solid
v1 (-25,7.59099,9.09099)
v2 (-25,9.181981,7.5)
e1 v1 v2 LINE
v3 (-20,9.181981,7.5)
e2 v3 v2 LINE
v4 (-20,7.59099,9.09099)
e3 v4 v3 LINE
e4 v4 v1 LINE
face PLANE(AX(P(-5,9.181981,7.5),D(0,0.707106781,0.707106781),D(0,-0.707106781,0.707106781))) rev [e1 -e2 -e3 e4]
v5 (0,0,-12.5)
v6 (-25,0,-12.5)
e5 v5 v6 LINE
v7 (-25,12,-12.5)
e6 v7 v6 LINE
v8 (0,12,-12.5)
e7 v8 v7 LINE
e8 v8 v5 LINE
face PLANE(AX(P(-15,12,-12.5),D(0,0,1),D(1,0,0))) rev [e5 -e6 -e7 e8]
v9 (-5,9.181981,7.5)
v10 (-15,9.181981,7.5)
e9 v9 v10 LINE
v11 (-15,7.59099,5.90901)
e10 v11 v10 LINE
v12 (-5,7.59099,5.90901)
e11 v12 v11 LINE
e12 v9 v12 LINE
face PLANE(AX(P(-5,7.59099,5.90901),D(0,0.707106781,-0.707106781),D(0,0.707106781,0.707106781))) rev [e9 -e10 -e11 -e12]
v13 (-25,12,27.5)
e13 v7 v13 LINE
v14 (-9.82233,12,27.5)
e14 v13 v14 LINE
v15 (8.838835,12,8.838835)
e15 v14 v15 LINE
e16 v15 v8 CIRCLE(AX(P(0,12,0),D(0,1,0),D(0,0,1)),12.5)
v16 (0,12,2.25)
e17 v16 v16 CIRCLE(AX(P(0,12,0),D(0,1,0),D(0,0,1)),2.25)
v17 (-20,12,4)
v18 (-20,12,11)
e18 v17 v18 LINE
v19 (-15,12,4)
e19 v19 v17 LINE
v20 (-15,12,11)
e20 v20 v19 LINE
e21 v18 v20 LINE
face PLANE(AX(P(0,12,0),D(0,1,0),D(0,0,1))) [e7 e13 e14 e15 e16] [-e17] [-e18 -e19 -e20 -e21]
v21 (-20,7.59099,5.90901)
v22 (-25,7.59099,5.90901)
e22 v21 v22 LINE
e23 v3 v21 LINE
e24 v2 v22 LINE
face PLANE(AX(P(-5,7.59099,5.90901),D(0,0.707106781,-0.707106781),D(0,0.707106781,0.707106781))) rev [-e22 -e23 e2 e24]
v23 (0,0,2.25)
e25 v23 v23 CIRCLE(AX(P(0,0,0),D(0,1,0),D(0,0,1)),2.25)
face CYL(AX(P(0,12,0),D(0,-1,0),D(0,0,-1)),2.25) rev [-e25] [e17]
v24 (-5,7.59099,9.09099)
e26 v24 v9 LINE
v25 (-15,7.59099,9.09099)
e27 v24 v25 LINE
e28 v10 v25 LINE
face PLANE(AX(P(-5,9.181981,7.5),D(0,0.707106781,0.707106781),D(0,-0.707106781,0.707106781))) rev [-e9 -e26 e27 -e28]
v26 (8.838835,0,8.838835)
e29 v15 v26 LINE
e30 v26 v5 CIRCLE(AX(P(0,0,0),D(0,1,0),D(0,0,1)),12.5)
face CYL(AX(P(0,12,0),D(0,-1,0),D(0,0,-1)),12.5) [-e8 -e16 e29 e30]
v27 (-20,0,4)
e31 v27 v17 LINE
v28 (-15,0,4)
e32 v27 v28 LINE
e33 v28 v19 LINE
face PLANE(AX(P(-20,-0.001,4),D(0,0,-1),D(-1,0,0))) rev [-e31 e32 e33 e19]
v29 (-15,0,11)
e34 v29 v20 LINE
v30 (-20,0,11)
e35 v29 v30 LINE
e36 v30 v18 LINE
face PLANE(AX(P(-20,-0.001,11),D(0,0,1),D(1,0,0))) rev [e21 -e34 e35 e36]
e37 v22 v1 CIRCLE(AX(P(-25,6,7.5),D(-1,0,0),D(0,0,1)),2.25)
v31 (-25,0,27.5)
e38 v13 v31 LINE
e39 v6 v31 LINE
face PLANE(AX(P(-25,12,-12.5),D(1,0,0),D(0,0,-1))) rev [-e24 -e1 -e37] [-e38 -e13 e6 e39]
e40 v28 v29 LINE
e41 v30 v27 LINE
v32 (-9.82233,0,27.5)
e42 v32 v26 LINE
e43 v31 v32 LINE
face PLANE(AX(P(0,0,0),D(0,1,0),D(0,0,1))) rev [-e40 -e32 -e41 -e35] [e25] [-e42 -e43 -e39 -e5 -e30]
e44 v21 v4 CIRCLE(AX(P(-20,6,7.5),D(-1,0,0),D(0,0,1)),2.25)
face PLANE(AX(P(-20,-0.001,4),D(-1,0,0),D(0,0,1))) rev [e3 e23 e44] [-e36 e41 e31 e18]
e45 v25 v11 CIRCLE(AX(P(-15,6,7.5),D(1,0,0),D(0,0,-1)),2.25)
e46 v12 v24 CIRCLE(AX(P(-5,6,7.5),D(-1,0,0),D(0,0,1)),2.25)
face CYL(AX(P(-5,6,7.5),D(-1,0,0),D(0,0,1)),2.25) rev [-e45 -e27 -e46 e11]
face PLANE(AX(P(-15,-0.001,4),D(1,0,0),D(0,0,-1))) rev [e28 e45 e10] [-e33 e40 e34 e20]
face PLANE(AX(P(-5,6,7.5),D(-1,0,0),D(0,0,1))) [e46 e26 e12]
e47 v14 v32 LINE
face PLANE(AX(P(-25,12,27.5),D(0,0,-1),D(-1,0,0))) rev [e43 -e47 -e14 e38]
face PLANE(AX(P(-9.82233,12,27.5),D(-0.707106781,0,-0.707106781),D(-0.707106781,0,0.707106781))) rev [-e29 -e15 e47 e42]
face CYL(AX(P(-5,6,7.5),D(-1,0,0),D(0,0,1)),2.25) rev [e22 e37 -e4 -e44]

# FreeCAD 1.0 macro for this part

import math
import FreeCAD as App
import Part
import Sketcher

V = App.Vector
Q = App.Units.Quantity


def add_polygon(sketch, points):
    """Adds a closed chain of lines whose ends are joined by coincident constraints."""
    first, n = sketch.GeometryCount, len(points)
    for a, b in zip(points, points[1:] + points[:1]):
        sketch.addGeometry(Part.LineSegment(App.Vector(*a, 0), App.Vector(*b, 0)), False)
    for i in range(n):
        sketch.addConstraint(Sketcher.Constraint("Coincident", first + i, 2, first + (i + 1) % n, 1))

doc = App.newDocument("Part")
params = doc.addObject("Spreadsheet::Sheet", "Params")
for row, (alias, value) in enumerate([
    ("sketch1_diameter", "4.5 mm"),
    ("sketch1_radius", "12.5 mm"),
    ("sketch1_width", "25 mm"),
    ("sketch1_height", "40 mm"),
    ("pad1_length", "12 mm"),
    ("sketch2_radius", "2.25 mm"),
    ("pocket1_length", "20 mm"),
    ("sketch3_width", "5 mm"),
    ("sketch3_height", "7 mm"),
    ("pocket2_length", "12 mm"),
], start=1):
    params.set(f"A{row}", alias)
    params.set(f"B{row}", "=" + value)
    params.setAlias(f"B{row}", alias)

body = doc.addObject("PartDesign::Body", "Body")

sketch1 = doc.addObject("Sketcher::SketchObject", "Sketch")
body.addObject(sketch1)
sketch1.AttachmentSupport = (doc.XZ_Plane, [""])
sketch1.MapMode = "FlatFace"
sketch1.addGeometry(Part.LineSegment(V(0, -12.5, 0), V(-25, -12.5, 0)), False)
sketch1.addGeometry(Part.LineSegment(V(-25, -12.5, 0), V(-25, 27.5, 0)), False)
sketch1.addGeometry(Part.LineSegment(V(-25, 27.5, 0), V(-9.8, 27.5, 0)), False)
sketch1.addGeometry(Part.LineSegment(V(-9.8, 27.5, 0), V(8.8, 8.8, 0)), False)
sketch1.addGeometry(Part.ArcOfCircle(Part.Circle(V(0, 0, 0), V(0, 0, 1), 12.5), math.radians(-90), math.radians(45)), False)
sketch1.addGeometry(Part.Circle(V(0, 0, 0), V(0, 0, 1), 2.2), False)
sketch1.addConstraint(Sketcher.Constraint("Coincident", 0, 2, 1, 1))
sketch1.addConstraint(Sketcher.Constraint("Coincident", 1, 2, 2, 1))
sketch1.addConstraint(Sketcher.Constraint("Coincident", 2, 2, 3, 1))
sketch1.addConstraint(Sketcher.Constraint("Tangent", 3, 2, 4, 2))
sketch1.addConstraint(Sketcher.Constraint("Tangent", 4, 1, 0, 1))
sketch1.addConstraint(Sketcher.Constraint("Horizontal", 0))
sketch1.addConstraint(Sketcher.Constraint("Vertical", 1))
sketch1.addConstraint(Sketcher.Constraint("Horizontal", 2))
sketch1.addConstraint(Sketcher.Constraint("Coincident", 4, 3, -1, 1))
sketch1.addConstraint(Sketcher.Constraint("Coincident", 5, 3, -1, 1))
sketch1.addConstraint(Sketcher.Constraint("Diameter", 5, Q("4.5 mm")))
sketch1.addConstraint(Sketcher.Constraint("Radius", 4, Q("12.5 mm")))
sketch1.addConstraint(Sketcher.Constraint("DistanceX", 0, 2, 0, 1, Q("25 mm")))
sketch1.addConstraint(Sketcher.Constraint("DistanceY", 1, 1, 1, 2, Q("40 mm")))
sketch1.addConstraint(Sketcher.Constraint("Angle", 3, Q("-45 deg")))
sketch1.setExpression("Constraints[10]", "Params.sketch1_diameter")
sketch1.setExpression("Constraints[11]", "Params.sketch1_radius")
sketch1.setExpression("Constraints[12]", "Params.sketch1_width")
sketch1.setExpression("Constraints[13]", "Params.sketch1_height")
pad1 = doc.addObject("PartDesign::Pad", "Pad")
body.addObject(pad1)
pad1.Profile = sketch1
pad1.setExpression("Length", "Params.pad1_length")
pad1.Reversed = True

sketch2 = doc.addObject("Sketcher::SketchObject", "Sketch001")
body.addObject(sketch2)
sketch2.AttachmentSupport = (doc.YZ_Plane, [""])
sketch2.MapMode = "FlatFace"
sketch2.AttachmentOffset = App.Placement(V(0, 0, -25), App.Rotation())
sketch2.addGeometry(Part.LineSegment(V(9.2, 7.5, 0), V(7.6, 5.9, 0)), False)
sketch2.addGeometry(Part.ArcOfCircle(Part.Circle(V(6, 7.5, 0), V(0, 0, 1), 2.2), math.radians(45), math.radians(315)), False)
sketch2.addGeometry(Part.LineSegment(V(7.6, 9.1, 0), V(9.2, 7.5, 0)), False)
sketch2.addConstraint(Sketcher.Constraint("Tangent", 0, 2, 1, 2))
sketch2.addConstraint(Sketcher.Constraint("Tangent", 1, 1, 2, 1))
sketch2.addConstraint(Sketcher.Constraint("Coincident", 2, 2, 0, 1))
sketch2.addConstraint(Sketcher.Constraint("Perpendicular", 0, 2))
sketch2.addConstraint(Sketcher.Constraint("Horizontal", 1, 3, 2, 2))
sketch2.addConstraint(Sketcher.Constraint("Radius", 1, Q("2.25 mm")))
sketch2.addConstraint(Sketcher.Constraint("DistanceX", -1, 1, 1, 3, Q("6 mm")))
sketch2.addConstraint(Sketcher.Constraint("DistanceY", -1, 1, 1, 3, Q("7.5 mm")))
sketch2.setExpression("Constraints[5]", "Params.sketch2_radius")
pocket1 = doc.addObject("PartDesign::Pocket", "Pocket")
body.addObject(pocket1)
pocket1.Profile = sketch2
pocket1.setExpression("Length", "Params.pocket1_length")
pocket1.Reversed = True

sketch3 = doc.addObject("Sketcher::SketchObject", "Sketch002")
body.addObject(sketch3)
sketch3.AttachmentSupport = (doc.XZ_Plane, [""])
sketch3.MapMode = "FlatFace"
sketch3.AttachmentOffset = App.Placement(V(0, 0, -12), App.Rotation())
add_polygon(sketch3, [(-20, 4), (-20, 11), (-15, 11), (-15, 4)])
sketch3.addConstraint(Sketcher.Constraint("Vertical", 0))
sketch3.addConstraint(Sketcher.Constraint("Horizontal", 1))
sketch3.addConstraint(Sketcher.Constraint("Vertical", 2))
sketch3.addConstraint(Sketcher.Constraint("Horizontal", 3))
sketch3.addConstraint(Sketcher.Constraint("DistanceX", 1, 1, 1, 2, Q("5 mm")))
sketch3.addConstraint(Sketcher.Constraint("DistanceY", 0, 1, 0, 2, Q("7 mm")))
sketch3.addConstraint(Sketcher.Constraint("DistanceX", 0, 2, -1, 1, Q("20 mm")))
sketch3.addConstraint(Sketcher.Constraint("DistanceY", -1, 1, 0, 2, Q("11 mm")))
sketch3.setExpression("Constraints[8]", "Params.sketch3_width")
sketch3.setExpression("Constraints[9]", "Params.sketch3_height")
pocket2 = doc.addObject("PartDesign::Pocket", "Pocket001")
body.addObject(pocket2)
pocket2.Profile = sketch3
pocket2.setExpression("Length", "Params.pocket2_length")
pocket2.Reversed = True

doc.recompute()
